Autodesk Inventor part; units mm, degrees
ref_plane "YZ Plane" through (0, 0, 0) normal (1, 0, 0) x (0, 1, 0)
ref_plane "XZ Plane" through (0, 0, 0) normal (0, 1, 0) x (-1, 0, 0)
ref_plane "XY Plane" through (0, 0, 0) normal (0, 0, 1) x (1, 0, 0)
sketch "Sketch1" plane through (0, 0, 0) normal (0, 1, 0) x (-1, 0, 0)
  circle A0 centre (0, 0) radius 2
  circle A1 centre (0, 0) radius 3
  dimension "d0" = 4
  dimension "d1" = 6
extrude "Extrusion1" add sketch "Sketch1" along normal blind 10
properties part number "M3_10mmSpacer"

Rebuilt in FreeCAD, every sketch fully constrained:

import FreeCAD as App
import Part
import Sketcher
from FreeCAD import Vector
Q = App.Units.Quantity

doc = App.newDocument("Part")
params = doc.addObject("Spreadsheet::Sheet", "Params")
for row, (alias, value) in enumerate([
    ("sketch1_diameter", "6 mm"),
    ("sketch1_diameter2", "4 mm"),
    ("pad1_length", "10 mm"),
], start=1):
    params.set(f"A{row}", alias)
    params.set(f"B{row}", "=" + value)
    params.setAlias(f"B{row}", alias)

body = doc.addObject("PartDesign::Body", "Body")

sketch1 = body.newObject("Sketcher::SketchObject", "Sketch")
sketch1.AttachmentSupport = (doc.getObject("XZ_Plane"), [""])
sketch1.MapMode = "FlatFace"
sketch1.addGeometry([
    Part.Circle(Vector(0, 0, 0), Vector(0, 0, 1), 3),
    Part.Circle(Vector(0, 0, 0), Vector(0, 0, 1), 2),
], False)
sketch1.addConstraint([
    Sketcher.Constraint("Coincident", 0, 3, -1, 1),
    Sketcher.Constraint("Coincident", 1, 3, -1, 1),
    Sketcher.Constraint("Diameter", 0, Q("6 mm")),
    Sketcher.Constraint("Diameter", 1, Q("4 mm")),
])
sketch1.setExpression("Constraints[2]", "Params.sketch1_diameter")
sketch1.setExpression("Constraints[3]", "Params.sketch1_diameter2")
pad1 = body.newObject("PartDesign::Pad", "Pad")
pad1.Profile = sketch1
pad1.setExpression("Length", "Params.pad1_length")
pad1.Reversed = True

doc.recompute()
